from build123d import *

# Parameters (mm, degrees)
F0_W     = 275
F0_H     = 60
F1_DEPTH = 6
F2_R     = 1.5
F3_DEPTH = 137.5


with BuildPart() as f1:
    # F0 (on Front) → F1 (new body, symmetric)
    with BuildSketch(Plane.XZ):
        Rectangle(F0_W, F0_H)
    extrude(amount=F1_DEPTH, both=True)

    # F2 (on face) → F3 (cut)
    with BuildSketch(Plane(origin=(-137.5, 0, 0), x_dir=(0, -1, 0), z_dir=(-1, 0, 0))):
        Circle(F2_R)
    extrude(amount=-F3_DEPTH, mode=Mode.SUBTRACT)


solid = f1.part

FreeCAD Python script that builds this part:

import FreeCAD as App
import Part
import Sketcher


def add_polygon(sketch, points):
    """Adds a closed chain of lines whose ends are joined by coincident constraints."""
    first, n = sketch.GeometryCount, len(points)
    for a, b in zip(points, points[1:] + points[:1]):
        sketch.addGeometry(Part.LineSegment(App.Vector(*a, 0), App.Vector(*b, 0)), False)
    for i in range(n):
        sketch.addConstraint(Sketcher.Constraint("Coincident", first + i, 2, first + (i + 1) % n, 1))

doc = App.newDocument("Part")
body = doc.addObject("PartDesign::Body", "Body")

# Sketch on XZ plane
sketch1 = body.newObject("Sketcher::SketchObject", "Sketch")
sketch1.AttachmentSupport = (doc.getObject("XZ_Plane"), [""])
sketch1.MapMode = "FlatFace"
add_polygon(sketch1, [(-138, 30), (-138, -30), (138, -30), (138, 30)])  # lines 0-3
sketch1.addConstraint([
    Sketcher.Constraint("Vertical", 0),
    Sketcher.Constraint("Horizontal", 1),
    Sketcher.Constraint("Vertical", 2),
    Sketcher.Constraint("Horizontal", 3),
    Sketcher.Constraint("Symmetric", 0, 2, 2, 2, -1, 1),
    Sketcher.Constraint("DistanceX", 1, 1, 1, 2, 275.0),
    Sketcher.Constraint("DistanceY", 0, 2, 0, 1, 60.0),
])
pad1 = body.newObject("PartDesign::Pad", "Pad")
pad1.Profile = sketch1
pad1.Length = 12
pad1.Midplane = True

# Sketch on YZ plane
sketch2 = body.newObject("Sketcher::SketchObject", "Sketch001")
sketch2.AttachmentSupport = (doc.getObject("YZ_Plane"), [""])
sketch2.MapMode = "FlatFace"
sketch2.AttachmentOffset = App.Placement(App.Vector(0, 0, -137.5), App.Rotation())
sketch2.addGeometry(Part.Circle(App.Vector(0, 0, 0), App.Vector(0, 0, 1), 1.5), False)
sketch2.addConstraint([
    Sketcher.Constraint("Coincident", 0, 3, -1, 1),
    Sketcher.Constraint("Diameter", 0, 3.0),
])
pocket1 = body.newObject("PartDesign::Pocket", "Pocket")
pocket1.Profile = sketch2
pocket1.Length = 137.5
pocket1.Reversed = True

doc.recompute()
